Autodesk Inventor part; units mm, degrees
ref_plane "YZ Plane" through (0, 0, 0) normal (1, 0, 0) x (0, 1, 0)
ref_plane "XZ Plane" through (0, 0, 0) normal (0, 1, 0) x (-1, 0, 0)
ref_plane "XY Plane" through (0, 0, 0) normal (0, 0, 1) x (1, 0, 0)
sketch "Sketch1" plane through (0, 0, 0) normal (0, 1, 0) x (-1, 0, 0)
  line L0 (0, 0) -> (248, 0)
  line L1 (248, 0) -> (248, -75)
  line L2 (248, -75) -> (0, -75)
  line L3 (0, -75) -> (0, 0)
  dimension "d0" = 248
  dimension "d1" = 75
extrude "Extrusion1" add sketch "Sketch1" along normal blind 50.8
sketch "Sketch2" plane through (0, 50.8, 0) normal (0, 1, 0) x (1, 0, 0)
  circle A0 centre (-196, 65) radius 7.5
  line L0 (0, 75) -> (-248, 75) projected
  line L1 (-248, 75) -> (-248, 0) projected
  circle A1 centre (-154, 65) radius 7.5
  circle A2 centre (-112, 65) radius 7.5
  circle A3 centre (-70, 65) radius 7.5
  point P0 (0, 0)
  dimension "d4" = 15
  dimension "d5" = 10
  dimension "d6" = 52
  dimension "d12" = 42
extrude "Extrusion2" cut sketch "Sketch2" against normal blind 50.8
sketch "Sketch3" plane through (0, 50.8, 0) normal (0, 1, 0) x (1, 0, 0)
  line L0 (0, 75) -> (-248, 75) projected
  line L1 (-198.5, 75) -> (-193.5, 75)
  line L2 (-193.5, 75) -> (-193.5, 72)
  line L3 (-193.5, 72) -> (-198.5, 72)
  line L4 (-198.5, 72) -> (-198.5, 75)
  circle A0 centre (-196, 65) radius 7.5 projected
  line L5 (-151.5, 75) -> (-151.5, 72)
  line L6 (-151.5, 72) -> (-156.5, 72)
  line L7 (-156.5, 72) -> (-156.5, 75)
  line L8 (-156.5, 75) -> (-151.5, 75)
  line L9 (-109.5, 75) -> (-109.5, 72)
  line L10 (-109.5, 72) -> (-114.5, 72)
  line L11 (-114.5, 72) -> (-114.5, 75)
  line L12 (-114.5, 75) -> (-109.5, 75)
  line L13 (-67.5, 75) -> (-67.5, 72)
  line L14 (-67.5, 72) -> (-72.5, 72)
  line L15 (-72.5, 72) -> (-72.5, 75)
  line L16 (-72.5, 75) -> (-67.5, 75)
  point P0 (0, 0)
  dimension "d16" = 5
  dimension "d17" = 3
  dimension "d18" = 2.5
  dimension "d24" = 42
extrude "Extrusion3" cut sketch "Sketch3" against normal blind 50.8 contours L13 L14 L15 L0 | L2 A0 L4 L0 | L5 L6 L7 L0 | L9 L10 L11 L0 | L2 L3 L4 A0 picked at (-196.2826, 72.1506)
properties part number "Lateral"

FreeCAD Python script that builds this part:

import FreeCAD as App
import Part
import Sketcher


def add_polygon(sketch, points):
    """Adds a closed chain of lines whose ends are joined by coincident constraints."""
    first, n = sketch.GeometryCount, len(points)
    for a, b in zip(points, points[1:] + points[:1]):
        sketch.addGeometry(Part.LineSegment(App.Vector(*a, 0), App.Vector(*b, 0)), False)
    for i in range(n):
        sketch.addConstraint(Sketcher.Constraint("Coincident", first + i, 2, first + (i + 1) % n, 1))

doc = App.newDocument("Part")
body = doc.addObject("PartDesign::Body", "Body")

# Sketch on XZ plane
sketch1 = body.newObject("Sketcher::SketchObject", "Sketch")
sketch1.AttachmentSupport = (doc.getObject("XZ_Plane"), [""])
sketch1.MapMode = "FlatFace"
add_polygon(sketch1, [(-248, 0), (0, 0), (0, -75), (-248, -75)])  # lines 0-3
sketch1.addConstraint([
    Sketcher.Constraint("Horizontal", 0),
    Sketcher.Constraint("Vertical", 1),
    Sketcher.Constraint("Horizontal", 2),
    Sketcher.Constraint("Vertical", 3),
    Sketcher.Constraint("Coincident", 0, 2, -1, 1),
    Sketcher.Constraint("DistanceX", 0, 1, 0, 2, 248.0),
    Sketcher.Constraint("DistanceY", 1, 2, 1, 1, 75.0),
])
pad1 = body.newObject("PartDesign::Pad", "Pad")
pad1.Profile = sketch1
pad1.Length = 50.8
pad1.Reversed = True

# Sketch on XZ plane
sketch2 = body.newObject("Sketcher::SketchObject", "Sketch001")
sketch2.AttachmentSupport = (doc.getObject("XZ_Plane"), [""])
sketch2.MapMode = "FlatFace"
sketch2.AttachmentOffset = App.Placement(App.Vector(0, 0, -50.8), App.Rotation())
sketch2.addGeometry([
    Part.Circle(App.Vector(-196, -65, 0), App.Vector(0, 0, 1), 7.5),
    Part.Circle(App.Vector(-154, -65, 0), App.Vector(0, 0, 1), 7.5),
    Part.Circle(App.Vector(-112, -65, 0), App.Vector(0, 0, 1), 7.5),
    Part.Circle(App.Vector(-70, -65, 0), App.Vector(0, 0, 1), 7.5),
], False)
sketch2.addConstraint([
    Sketcher.Constraint("Equal", 0, 1),
    Sketcher.Constraint("Equal", 1, 2),
    Sketcher.Constraint("Equal", 2, 3),
    Sketcher.Constraint("Horizontal", 0, 3, 1, 3),
    Sketcher.Constraint("Horizontal", 1, 3, 2, 3),
    Sketcher.Constraint("Horizontal", 2, 3, 3, 3),
    Sketcher.Constraint("Diameter", 0, 15.0),
    Sketcher.Constraint("DistanceX", 0, 3, 1, 3, 42.0),
    Sketcher.Constraint("DistanceX", 1, 3, 2, 3, 42.0),
    Sketcher.Constraint("DistanceX", 2, 3, 3, 3, 42.0),
    Sketcher.Constraint("DistanceX", 0, 3, -1, 1, 196.0),
    Sketcher.Constraint("DistanceY", 0, 3, -1, 1, 65.0),
])
pocket1 = body.newObject("PartDesign::Pocket", "Pocket")
pocket1.Profile = sketch2
pocket1.Length = 50.8
pocket1.Reversed = True

# Sketch on XZ plane
sketch3 = body.newObject("Sketcher::SketchObject", "Sketch002")
sketch3.AttachmentSupport = (doc.getObject("XZ_Plane"), [""])
sketch3.MapMode = "FlatFace"
sketch3.AttachmentOffset = App.Placement(App.Vector(0, 0, -50.8), App.Rotation())
add_polygon(sketch3, [(-67.5, -72), (-67.5, -75), (-72.5, -75), (-72.5, -72)])  # lines 0-3
add_polygon(sketch3, [(-193.5, -75), (-198.5, -75), (-198.5, -72), (-193.5, -72)])  # lines 4-7
add_polygon(sketch3, [(-151.5, -72), (-151.5, -75), (-156.5, -75), (-156.5, -72)])  # lines 8-11
add_polygon(sketch3, [(-109.5, -72), (-109.5, -75), (-114.5, -75), (-114.5, -72)])  # lines 12-15
sketch3.addConstraint([
    Sketcher.Constraint("Vertical", 0),
    Sketcher.Constraint("Horizontal", 1),
    Sketcher.Constraint("Vertical", 2),
    Sketcher.Constraint("Horizontal", 3),
    Sketcher.Constraint("Horizontal", 4),
    Sketcher.Constraint("Vertical", 5),
    Sketcher.Constraint("Horizontal", 6),
    Sketcher.Constraint("Vertical", 7),
    Sketcher.Constraint("Vertical", 8),
    Sketcher.Constraint("Horizontal", 9),
    Sketcher.Constraint("Vertical", 10),
    Sketcher.Constraint("Horizontal", 11),
    Sketcher.Constraint("Vertical", 12),
    Sketcher.Constraint("Horizontal", 13),
    Sketcher.Constraint("Vertical", 14),
    Sketcher.Constraint("Horizontal", 15),
    Sketcher.Constraint("Horizontal", 1, 2, 4, 2),
    Sketcher.Constraint("Horizontal", 3, 2, 5, 2),
    Sketcher.Constraint("Horizontal", 7, 2, 8, 2),
    Sketcher.Constraint("Horizontal", 6, 2, 10, 2),
    Sketcher.Constraint("Horizontal", 9, 2, 12, 2),
    Sketcher.Constraint("Horizontal", 11, 2, 14, 2),
    Sketcher.Constraint("Equal", 3, 4),
    Sketcher.Constraint("Equal", 6, 9),
    Sketcher.Constraint("Equal", 11, 13),
    Sketcher.Constraint("DistanceX", 1, 2, 1, 1, 5.0),
    Sketcher.Constraint("DistanceY", 0, 2, 0, 1, 3.0),
    Sketcher.Constraint("DistanceX", 7, 2, 8, 2, 42.0),
    Sketcher.Constraint("DistanceX", 12, 2, 0, 2, 42.0),
    Sketcher.Constraint("DistanceX", 8, 2, 12, 2, 42.0),
    Sketcher.Constraint("DistanceY", 0, 2, -1, 1, 75.0),
    Sketcher.Constraint("DistanceX", 0, 2, -1, 1, 67.5),
])
pocket2 = body.newObject("PartDesign::Pocket", "Pocket001")
pocket2.Profile = sketch3
pocket2.Length = 50.8
pocket2.Reversed = True

doc.recompute()
